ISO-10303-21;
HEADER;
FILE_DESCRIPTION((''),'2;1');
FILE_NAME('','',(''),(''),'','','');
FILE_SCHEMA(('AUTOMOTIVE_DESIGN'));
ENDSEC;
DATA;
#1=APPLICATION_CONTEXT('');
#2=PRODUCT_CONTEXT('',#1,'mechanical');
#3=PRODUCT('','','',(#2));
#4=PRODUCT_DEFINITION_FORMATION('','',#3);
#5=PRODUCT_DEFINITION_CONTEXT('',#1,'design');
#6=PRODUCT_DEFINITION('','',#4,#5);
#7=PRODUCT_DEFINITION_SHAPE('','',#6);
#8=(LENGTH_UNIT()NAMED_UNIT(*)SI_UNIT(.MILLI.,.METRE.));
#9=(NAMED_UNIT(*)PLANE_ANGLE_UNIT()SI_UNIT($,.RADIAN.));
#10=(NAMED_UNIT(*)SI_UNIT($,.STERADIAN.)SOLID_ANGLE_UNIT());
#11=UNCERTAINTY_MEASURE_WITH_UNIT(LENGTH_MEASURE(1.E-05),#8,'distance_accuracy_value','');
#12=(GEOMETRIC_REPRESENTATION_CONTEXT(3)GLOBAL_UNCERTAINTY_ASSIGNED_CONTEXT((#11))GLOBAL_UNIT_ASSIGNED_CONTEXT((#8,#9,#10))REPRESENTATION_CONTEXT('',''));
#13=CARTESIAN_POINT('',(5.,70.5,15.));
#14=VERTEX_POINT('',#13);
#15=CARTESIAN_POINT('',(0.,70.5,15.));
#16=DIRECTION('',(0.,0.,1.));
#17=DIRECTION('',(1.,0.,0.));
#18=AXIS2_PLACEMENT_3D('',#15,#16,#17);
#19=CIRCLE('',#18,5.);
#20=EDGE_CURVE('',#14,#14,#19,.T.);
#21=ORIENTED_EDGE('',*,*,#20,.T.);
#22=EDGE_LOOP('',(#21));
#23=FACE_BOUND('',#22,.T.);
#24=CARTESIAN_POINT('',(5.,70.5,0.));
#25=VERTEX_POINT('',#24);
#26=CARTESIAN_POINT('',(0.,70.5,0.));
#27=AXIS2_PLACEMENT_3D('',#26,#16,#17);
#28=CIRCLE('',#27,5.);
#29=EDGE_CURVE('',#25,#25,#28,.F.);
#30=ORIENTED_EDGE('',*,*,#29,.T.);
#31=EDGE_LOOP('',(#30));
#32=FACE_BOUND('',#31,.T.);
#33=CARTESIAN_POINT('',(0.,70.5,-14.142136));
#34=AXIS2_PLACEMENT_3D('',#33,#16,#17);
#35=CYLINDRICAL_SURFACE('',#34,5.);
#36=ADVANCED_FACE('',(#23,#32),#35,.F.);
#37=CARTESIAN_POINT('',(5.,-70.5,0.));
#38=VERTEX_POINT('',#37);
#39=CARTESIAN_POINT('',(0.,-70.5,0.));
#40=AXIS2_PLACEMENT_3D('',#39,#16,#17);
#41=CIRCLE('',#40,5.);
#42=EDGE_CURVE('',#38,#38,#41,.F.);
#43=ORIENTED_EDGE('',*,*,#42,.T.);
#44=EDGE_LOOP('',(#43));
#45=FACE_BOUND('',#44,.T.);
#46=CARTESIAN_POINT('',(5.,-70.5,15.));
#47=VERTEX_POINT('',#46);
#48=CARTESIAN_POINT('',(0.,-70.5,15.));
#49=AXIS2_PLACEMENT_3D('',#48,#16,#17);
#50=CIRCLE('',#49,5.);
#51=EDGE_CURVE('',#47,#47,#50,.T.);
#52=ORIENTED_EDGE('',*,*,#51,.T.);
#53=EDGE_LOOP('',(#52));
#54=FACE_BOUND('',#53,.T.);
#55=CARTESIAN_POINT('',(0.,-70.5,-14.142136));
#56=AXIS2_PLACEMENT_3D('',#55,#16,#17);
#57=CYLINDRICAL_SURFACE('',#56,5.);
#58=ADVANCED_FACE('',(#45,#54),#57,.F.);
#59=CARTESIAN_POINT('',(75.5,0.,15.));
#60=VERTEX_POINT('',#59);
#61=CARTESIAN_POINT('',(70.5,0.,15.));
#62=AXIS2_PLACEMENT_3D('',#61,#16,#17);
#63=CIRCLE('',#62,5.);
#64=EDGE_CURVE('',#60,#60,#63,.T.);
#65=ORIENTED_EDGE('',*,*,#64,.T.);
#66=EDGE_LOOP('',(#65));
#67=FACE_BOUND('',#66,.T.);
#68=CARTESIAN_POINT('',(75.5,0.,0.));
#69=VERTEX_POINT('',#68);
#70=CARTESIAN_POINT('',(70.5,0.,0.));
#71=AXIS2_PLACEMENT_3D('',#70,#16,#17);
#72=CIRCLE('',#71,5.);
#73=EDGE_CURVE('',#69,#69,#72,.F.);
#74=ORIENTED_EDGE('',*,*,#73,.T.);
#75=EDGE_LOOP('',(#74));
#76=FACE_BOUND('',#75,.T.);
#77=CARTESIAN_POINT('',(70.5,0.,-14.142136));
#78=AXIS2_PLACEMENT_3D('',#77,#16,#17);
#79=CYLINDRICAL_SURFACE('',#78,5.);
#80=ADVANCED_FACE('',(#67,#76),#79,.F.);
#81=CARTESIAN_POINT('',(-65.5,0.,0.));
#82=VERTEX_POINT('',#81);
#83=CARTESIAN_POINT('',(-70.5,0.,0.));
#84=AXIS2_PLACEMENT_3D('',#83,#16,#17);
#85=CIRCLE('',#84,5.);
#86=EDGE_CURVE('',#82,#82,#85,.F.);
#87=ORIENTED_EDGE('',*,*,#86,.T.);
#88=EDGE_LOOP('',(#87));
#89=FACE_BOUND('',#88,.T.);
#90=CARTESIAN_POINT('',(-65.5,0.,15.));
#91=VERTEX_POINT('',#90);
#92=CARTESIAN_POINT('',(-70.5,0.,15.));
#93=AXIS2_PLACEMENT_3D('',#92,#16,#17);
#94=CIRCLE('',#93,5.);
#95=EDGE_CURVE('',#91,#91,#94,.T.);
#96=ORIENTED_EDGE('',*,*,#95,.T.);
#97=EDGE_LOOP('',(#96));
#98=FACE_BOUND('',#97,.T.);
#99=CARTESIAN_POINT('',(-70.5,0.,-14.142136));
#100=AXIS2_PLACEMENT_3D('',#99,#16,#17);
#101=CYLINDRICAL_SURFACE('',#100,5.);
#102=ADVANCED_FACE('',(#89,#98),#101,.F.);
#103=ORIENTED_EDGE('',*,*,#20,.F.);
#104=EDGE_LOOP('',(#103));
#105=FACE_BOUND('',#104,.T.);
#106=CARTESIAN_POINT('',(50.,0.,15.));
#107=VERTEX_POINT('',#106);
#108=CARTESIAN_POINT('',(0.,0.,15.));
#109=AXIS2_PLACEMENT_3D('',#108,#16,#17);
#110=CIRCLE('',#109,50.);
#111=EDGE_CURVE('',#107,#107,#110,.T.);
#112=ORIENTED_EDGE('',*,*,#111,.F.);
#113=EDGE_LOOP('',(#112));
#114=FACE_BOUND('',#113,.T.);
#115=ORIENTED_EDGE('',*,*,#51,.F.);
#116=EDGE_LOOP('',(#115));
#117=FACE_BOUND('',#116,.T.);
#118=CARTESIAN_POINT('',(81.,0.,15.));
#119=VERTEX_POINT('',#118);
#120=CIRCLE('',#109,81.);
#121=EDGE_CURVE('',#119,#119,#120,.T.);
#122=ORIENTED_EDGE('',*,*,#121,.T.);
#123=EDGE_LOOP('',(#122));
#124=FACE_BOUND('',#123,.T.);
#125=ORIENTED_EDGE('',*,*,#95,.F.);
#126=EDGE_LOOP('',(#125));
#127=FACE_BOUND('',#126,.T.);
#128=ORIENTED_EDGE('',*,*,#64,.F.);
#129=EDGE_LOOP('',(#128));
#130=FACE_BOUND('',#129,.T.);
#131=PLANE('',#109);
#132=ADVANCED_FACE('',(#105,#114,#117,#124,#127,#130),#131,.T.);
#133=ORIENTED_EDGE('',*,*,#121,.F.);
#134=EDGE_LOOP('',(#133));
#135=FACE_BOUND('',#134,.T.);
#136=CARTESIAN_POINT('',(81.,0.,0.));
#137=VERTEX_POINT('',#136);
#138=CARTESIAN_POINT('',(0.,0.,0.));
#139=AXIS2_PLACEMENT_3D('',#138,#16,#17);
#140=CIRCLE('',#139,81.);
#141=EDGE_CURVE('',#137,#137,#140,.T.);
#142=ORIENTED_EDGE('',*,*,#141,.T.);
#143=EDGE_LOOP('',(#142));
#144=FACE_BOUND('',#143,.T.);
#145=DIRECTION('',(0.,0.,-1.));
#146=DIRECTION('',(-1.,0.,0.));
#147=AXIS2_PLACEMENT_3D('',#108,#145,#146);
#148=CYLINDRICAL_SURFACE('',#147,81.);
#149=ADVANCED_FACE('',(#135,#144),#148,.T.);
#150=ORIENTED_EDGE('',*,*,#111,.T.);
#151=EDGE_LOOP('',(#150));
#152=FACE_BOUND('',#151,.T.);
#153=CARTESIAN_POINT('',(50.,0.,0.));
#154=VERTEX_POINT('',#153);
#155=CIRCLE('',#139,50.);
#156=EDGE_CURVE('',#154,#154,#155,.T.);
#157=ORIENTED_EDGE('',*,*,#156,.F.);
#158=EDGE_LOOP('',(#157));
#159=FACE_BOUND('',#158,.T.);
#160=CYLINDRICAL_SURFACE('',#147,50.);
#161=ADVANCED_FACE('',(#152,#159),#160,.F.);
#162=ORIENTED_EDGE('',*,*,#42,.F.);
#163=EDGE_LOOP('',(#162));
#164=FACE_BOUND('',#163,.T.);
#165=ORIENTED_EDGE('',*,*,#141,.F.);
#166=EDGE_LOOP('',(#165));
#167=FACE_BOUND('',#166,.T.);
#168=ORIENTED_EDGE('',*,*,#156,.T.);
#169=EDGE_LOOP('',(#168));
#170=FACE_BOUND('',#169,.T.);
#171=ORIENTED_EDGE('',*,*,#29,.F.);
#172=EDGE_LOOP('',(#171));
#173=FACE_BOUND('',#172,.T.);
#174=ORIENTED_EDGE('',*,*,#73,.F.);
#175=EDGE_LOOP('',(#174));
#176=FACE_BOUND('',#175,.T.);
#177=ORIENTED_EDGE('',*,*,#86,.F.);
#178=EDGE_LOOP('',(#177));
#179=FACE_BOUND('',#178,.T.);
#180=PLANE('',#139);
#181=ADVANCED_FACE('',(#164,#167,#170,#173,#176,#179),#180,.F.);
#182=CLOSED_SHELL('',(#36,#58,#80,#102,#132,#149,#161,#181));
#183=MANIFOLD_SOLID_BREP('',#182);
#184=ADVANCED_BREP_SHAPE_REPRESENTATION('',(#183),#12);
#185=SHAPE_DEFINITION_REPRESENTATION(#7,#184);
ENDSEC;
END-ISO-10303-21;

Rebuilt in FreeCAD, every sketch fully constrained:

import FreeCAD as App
import Part
import Sketcher

V = App.Vector
Q = App.Units.Quantity

doc = App.newDocument("Part")
params = doc.addObject("Spreadsheet::Sheet", "Params")
for row, (alias, value) in enumerate([
    ("sketch1_diameter", "162 mm"),
    ("sketch1_diameter2", "100 mm"),
    ("pad1_length", "15 mm"),
    ("sketch2_diameter", "10 mm"),
    ("pocket1_length", "15 mm"),
], start=1):
    params.set(f"A{row}", alias)
    params.set(f"B{row}", "=" + value)
    params.setAlias(f"B{row}", alias)

body = doc.addObject("PartDesign::Body", "Body")

# Sketch on XY plane
sketch1 = body.newObject("Sketcher::SketchObject", "Sketch")
sketch1.AttachmentSupport = (doc.getObject("XY_Plane"), [""])
sketch1.MapMode = "FlatFace"
sketch1.addGeometry([
    Part.Circle(V(0, 0, 0), V(0, 0, 1), 81),
    Part.Circle(V(0, 0, 0), V(0, 0, 1), 50),
], False)
sketch1.addConstraint([
    Sketcher.Constraint("Coincident", 0, 3, -1, 1),
    Sketcher.Constraint("Coincident", 1, 3, -1, 1),
    Sketcher.Constraint("Diameter", 0, Q("162 mm")),
    Sketcher.Constraint("Diameter", 1, Q("100 mm")),
])
sketch1.setExpression("Constraints[2]", "Params.sketch1_diameter")
sketch1.setExpression("Constraints[3]", "Params.sketch1_diameter2")
pad1 = body.newObject("PartDesign::Pad", "Pad")
pad1.Profile = sketch1
pad1.setExpression("Length", "Params.pad1_length")

# Sketch on XY plane
sketch2 = body.newObject("Sketcher::SketchObject", "Sketch001")
sketch2.AttachmentSupport = (doc.getObject("XY_Plane"), [""])
sketch2.MapMode = "FlatFace"
sketch2.AttachmentOffset = App.Placement(V(0, 0, 15), App.Rotation())
sketch2.addGeometry([
    Part.Circle(V(0, 70, 0), V(0, 0, 1), 5),
    Part.Circle(V(-70, 0, 0), V(0, 0, 1), 5),
    Part.Circle(V(70, 0, 0), V(0, 0, 1), 5),
    Part.Circle(V(0, -70, 0), V(0, 0, 1), 5),
], False)
sketch2.addConstraint([
    Sketcher.Constraint("Equal", 0, 1),
    Sketcher.Constraint("Equal", 1, 2),
    Sketcher.Constraint("Equal", 2, 3),
    Sketcher.Constraint("Symmetric", 1, 3, 2, 3, -1, 1),
    Sketcher.Constraint("Symmetric", 0, 3, 3, 3, -1, 1),
    Sketcher.Constraint("PointOnObject", 0, 3, -2),
    Sketcher.Constraint("PointOnObject", 1, 3, -1),
    Sketcher.Constraint("Diameter", 0, Q("10 mm")),
    Sketcher.Constraint("DistanceX", 1, 3, 2, 3, Q("141 mm")),
    Sketcher.Constraint("DistanceY", 3, 3, 0, 3, Q("141 mm")),
])
sketch2.setExpression("Constraints[7]", "Params.sketch2_diameter")
pocket1 = body.newObject("PartDesign::Pocket", "Pocket")
pocket1.Profile = sketch2
pocket1.setExpression("Length", "Params.pocket1_length")

doc.recompute()
